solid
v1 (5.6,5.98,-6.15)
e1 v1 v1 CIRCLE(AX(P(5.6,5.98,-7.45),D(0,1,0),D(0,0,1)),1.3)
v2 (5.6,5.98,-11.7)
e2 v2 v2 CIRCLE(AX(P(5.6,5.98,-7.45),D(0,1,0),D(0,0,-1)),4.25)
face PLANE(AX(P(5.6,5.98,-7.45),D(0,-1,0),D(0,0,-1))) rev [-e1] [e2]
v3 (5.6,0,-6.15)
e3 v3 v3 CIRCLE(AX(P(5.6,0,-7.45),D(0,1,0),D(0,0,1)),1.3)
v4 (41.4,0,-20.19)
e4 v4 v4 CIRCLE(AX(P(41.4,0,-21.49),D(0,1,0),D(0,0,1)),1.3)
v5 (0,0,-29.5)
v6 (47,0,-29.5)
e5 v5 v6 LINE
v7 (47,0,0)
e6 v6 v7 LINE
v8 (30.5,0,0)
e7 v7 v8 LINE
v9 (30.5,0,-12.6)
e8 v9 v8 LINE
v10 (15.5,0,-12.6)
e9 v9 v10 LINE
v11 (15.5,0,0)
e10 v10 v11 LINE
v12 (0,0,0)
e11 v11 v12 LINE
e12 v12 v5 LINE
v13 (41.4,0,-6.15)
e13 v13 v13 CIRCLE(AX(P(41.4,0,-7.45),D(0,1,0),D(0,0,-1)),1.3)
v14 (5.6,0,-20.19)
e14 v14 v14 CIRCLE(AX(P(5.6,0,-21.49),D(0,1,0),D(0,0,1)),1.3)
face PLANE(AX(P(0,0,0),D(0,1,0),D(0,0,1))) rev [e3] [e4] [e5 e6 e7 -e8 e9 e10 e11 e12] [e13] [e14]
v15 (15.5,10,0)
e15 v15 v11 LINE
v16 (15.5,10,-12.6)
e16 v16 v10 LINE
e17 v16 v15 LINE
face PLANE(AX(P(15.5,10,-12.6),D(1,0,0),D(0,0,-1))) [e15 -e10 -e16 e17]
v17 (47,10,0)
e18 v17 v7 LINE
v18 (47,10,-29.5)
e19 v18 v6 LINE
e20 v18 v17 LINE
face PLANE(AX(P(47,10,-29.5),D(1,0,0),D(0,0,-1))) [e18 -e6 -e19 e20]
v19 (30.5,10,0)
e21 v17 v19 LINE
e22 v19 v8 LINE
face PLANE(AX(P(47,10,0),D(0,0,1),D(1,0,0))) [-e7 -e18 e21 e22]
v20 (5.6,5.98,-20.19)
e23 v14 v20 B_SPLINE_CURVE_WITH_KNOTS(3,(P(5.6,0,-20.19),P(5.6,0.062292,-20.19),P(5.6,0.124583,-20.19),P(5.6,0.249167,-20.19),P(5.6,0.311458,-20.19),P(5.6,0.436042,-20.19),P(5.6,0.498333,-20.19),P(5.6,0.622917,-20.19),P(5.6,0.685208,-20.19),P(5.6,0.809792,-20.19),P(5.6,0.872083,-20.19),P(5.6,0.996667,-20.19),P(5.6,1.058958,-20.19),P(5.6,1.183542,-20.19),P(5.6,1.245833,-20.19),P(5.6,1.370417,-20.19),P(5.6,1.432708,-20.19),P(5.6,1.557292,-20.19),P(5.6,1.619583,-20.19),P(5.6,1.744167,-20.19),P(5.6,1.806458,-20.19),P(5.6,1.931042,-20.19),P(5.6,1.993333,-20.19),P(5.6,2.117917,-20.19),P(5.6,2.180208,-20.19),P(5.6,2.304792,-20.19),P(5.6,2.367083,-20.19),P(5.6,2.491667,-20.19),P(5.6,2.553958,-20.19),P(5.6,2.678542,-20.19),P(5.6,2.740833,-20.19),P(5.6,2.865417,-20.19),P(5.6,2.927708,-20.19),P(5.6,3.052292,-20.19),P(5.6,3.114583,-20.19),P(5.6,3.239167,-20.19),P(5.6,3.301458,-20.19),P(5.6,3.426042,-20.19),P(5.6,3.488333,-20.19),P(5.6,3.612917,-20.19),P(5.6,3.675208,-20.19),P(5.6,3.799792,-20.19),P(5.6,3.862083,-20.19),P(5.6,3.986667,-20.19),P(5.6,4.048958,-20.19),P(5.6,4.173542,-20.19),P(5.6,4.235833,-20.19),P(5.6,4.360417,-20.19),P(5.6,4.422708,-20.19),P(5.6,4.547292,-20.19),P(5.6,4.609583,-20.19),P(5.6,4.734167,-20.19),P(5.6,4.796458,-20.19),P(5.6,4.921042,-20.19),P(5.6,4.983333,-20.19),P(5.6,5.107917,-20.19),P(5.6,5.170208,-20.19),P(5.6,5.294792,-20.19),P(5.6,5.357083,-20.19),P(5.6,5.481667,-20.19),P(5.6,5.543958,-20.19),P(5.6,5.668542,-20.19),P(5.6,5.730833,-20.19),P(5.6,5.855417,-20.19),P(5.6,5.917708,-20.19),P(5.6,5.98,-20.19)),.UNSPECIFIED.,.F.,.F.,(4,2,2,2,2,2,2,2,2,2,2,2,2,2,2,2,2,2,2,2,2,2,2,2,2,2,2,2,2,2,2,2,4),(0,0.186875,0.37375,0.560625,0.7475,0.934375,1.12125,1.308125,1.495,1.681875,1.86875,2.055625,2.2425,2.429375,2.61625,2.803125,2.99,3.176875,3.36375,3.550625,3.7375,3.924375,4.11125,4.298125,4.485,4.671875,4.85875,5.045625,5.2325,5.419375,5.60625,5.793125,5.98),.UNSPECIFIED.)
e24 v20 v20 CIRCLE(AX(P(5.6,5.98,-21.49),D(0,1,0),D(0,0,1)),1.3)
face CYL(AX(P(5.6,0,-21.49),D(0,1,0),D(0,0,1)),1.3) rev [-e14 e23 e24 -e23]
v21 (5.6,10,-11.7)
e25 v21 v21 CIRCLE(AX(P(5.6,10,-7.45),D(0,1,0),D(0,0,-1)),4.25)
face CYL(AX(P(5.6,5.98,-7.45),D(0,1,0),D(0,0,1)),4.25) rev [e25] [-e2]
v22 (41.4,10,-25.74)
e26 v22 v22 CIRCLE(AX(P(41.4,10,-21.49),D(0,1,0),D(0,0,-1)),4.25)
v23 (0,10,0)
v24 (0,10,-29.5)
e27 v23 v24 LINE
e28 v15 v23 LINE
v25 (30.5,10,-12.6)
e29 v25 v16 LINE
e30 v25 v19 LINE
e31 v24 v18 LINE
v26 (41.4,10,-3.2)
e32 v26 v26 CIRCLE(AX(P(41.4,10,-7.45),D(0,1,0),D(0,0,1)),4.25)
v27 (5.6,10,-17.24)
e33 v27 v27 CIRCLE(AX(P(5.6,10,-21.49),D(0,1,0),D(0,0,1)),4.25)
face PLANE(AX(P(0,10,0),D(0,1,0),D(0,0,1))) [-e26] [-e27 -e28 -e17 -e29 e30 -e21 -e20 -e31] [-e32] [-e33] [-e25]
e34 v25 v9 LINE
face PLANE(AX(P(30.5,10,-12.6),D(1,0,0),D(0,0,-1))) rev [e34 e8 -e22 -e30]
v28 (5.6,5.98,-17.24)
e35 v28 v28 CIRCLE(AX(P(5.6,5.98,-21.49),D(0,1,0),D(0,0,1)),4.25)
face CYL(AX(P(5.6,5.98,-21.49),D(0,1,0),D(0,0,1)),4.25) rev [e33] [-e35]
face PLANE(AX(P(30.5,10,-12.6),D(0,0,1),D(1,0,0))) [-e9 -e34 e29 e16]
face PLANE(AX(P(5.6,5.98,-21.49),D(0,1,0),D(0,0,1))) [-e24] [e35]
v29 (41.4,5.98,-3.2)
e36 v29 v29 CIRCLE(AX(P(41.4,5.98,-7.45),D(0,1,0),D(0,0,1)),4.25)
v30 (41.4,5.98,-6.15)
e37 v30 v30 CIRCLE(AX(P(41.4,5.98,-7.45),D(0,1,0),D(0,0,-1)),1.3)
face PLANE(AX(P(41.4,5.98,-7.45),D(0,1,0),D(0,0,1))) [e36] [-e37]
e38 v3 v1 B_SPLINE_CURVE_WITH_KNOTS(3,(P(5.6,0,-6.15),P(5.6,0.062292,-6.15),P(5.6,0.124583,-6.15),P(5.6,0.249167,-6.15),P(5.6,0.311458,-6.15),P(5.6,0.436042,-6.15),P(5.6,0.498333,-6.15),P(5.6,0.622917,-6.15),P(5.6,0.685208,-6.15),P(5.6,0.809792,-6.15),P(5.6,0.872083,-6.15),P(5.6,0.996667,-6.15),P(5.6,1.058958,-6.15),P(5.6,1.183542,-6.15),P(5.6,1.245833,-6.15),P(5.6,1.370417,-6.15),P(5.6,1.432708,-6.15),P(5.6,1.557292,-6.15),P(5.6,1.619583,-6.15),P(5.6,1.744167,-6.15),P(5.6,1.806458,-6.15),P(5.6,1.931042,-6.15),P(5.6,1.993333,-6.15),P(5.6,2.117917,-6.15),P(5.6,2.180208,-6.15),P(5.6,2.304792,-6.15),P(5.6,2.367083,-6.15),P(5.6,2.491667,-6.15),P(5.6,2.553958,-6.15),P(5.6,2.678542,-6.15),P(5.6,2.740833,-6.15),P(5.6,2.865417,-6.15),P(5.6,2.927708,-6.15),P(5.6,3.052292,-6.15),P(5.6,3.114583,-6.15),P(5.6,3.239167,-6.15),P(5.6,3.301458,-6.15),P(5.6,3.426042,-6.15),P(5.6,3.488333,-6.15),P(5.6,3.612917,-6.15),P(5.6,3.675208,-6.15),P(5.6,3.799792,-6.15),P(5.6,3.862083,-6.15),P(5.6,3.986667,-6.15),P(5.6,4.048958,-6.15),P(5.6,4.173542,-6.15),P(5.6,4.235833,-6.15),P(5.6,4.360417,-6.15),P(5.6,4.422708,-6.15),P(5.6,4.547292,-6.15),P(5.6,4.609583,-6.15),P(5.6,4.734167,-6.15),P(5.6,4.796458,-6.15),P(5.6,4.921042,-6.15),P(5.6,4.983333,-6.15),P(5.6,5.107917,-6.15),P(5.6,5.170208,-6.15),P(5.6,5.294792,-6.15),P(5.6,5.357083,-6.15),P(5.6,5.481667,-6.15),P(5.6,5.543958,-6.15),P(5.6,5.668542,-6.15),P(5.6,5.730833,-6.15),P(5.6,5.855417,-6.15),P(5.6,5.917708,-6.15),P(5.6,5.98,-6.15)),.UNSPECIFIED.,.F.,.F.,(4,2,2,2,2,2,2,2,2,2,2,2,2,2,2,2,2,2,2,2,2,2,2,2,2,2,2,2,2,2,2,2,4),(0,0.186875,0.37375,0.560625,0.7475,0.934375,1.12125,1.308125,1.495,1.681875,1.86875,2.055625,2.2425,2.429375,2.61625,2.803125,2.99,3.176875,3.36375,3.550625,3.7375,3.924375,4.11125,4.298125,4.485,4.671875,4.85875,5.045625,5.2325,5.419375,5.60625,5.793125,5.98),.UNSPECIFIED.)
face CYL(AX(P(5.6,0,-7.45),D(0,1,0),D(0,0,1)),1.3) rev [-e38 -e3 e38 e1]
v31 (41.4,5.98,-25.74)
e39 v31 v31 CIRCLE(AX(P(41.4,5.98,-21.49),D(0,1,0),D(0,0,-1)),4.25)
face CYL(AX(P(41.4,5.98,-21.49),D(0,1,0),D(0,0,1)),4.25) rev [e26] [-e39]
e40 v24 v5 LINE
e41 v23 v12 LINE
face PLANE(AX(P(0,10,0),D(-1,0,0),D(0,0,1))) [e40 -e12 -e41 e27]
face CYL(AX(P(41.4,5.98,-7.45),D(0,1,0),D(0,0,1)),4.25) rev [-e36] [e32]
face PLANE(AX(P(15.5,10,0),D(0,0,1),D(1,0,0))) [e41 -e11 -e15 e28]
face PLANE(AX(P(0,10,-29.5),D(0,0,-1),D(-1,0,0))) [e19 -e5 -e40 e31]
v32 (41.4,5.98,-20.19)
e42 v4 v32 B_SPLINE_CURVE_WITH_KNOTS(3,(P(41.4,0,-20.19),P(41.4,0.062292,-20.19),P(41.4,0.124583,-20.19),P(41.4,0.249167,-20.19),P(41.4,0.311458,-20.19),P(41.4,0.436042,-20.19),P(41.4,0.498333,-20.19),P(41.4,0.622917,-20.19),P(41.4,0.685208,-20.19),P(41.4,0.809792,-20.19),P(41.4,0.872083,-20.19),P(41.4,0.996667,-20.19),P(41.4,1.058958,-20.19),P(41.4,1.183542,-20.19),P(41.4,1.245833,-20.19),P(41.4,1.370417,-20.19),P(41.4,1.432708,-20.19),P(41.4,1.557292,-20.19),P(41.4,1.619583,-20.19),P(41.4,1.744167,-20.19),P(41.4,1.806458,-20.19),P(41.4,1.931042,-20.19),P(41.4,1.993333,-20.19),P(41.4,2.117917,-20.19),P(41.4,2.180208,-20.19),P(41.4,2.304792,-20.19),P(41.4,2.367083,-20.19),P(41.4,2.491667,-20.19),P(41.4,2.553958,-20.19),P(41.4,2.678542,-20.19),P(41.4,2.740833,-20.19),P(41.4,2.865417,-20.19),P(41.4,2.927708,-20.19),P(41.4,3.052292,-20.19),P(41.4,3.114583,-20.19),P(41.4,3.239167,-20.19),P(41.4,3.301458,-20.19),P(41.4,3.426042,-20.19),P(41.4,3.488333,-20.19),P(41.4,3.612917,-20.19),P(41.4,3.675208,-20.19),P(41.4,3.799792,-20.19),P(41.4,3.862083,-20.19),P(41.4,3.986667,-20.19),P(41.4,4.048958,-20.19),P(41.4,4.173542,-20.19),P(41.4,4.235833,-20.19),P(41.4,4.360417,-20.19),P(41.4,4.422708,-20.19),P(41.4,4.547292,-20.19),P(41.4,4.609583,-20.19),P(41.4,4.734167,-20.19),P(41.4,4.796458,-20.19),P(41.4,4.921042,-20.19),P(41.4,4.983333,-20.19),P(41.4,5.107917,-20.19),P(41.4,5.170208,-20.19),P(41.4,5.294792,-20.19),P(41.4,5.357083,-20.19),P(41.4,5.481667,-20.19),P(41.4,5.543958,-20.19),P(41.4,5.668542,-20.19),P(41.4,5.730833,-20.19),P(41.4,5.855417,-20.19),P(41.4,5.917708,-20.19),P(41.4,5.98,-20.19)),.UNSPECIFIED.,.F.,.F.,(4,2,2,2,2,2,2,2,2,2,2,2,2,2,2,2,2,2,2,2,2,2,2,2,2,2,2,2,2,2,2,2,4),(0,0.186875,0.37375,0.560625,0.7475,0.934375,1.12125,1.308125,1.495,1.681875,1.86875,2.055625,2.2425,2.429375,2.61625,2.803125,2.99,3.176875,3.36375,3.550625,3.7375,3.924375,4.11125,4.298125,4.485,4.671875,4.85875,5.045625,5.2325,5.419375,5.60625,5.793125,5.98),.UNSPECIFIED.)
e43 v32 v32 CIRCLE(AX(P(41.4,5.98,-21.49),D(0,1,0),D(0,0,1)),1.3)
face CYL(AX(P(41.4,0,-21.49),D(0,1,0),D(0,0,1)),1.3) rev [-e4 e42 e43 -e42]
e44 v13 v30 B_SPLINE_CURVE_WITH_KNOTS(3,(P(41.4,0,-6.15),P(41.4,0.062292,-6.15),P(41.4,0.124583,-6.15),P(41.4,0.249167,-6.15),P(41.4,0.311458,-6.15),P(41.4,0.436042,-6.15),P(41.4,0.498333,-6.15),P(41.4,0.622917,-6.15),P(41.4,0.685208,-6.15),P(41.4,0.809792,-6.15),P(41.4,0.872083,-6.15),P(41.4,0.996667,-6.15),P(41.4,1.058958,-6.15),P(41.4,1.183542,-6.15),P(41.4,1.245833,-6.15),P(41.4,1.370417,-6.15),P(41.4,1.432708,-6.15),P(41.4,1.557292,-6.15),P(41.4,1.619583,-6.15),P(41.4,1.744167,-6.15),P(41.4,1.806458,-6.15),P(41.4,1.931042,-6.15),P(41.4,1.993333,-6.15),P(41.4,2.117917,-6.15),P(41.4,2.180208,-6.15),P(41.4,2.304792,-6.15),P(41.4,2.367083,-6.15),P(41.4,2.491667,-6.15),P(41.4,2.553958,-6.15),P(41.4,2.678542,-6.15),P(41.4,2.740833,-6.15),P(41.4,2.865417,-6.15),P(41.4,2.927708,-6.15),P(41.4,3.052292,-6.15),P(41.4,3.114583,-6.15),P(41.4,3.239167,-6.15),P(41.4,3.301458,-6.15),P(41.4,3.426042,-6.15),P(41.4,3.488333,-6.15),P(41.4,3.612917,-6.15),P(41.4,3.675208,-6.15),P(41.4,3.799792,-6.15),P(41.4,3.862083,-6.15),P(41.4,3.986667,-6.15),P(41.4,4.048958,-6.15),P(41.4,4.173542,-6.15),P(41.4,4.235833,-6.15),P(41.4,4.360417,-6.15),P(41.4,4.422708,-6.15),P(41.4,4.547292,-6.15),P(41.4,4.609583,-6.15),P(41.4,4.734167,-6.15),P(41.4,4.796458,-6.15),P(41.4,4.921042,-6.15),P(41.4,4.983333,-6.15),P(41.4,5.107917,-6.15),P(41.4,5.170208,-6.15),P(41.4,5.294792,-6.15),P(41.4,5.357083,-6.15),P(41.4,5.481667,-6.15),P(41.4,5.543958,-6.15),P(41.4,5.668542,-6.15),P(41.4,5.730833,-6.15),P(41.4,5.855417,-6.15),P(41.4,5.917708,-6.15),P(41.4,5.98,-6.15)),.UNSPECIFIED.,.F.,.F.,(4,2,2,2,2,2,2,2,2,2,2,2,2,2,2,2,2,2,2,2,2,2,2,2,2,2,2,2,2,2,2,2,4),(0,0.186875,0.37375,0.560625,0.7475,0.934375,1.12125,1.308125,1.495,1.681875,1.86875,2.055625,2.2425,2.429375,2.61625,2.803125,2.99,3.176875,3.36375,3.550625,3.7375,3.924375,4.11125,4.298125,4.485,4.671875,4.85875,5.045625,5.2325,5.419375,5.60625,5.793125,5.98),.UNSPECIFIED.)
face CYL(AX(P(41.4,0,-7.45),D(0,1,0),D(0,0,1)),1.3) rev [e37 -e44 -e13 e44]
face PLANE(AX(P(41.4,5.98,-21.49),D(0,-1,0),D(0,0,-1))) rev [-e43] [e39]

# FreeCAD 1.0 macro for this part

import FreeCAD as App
import Part
import Sketcher
from FreeCAD import Vector


def add_polygon(sketch, points):
    """Adds a closed chain of lines whose ends are joined by coincident constraints."""
    first, n = sketch.GeometryCount, len(points)
    for a, b in zip(points, points[1:] + points[:1]):
        sketch.addGeometry(Part.LineSegment(App.Vector(*a, 0), App.Vector(*b, 0)), False)
    for i in range(n):
        sketch.addConstraint(Sketcher.Constraint("Coincident", first + i, 2, first + (i + 1) % n, 1))

doc = App.newDocument("Part")
params = doc.addObject("Spreadsheet::Sheet", "Params")
for row, (alias, value) in enumerate([
    ("sketch1_width", "15 mm"),
    ("sketch1_width2", "47 mm"),
    ("sketch1_width3", "15.5 mm"),
    ("sketch1_height", "29.5 mm"),
    ("sketch1_height2", "12.6 mm"),
    ("pad1_length", "10 mm"),
    ("sketch2_diameter", "8.5 mm"),
    ("pocket1_length", "4.02 mm"),
    ("sketch3_diameter", "2.6 mm"),
], start=1):
    params.set(f"A{row}", alias)
    params.set(f"B{row}", "=" + value)
    params.setAlias(f"B{row}", alias)

body = doc.addObject("PartDesign::Body", "Body")

# Sketch on XZ plane
sketch1 = body.newObject("Sketcher::SketchObject", "Sketch")
sketch1.AttachmentSupport = (doc.getObject("XZ_Plane"), [""])
sketch1.MapMode = "FlatFace"
add_polygon(sketch1, [(0, -29.5), (0, 0), (15.5, 0), (15.5, -12.6), (30.5, -12.6), (30.5, 0), (47, 0), (47, -29.5)])  # lines 0-7
sketch1.addConstraint(Sketcher.Constraint("Vertical", 0))
sketch1.addConstraint(Sketcher.Constraint("Horizontal", 1))
sketch1.addConstraint(Sketcher.Constraint("Vertical", 2))
sketch1.addConstraint(Sketcher.Constraint("Horizontal", 3))
sketch1.addConstraint(Sketcher.Constraint("Vertical", 4))
sketch1.addConstraint(Sketcher.Constraint("Horizontal", 5))
sketch1.addConstraint(Sketcher.Constraint("Vertical", 6))
sketch1.addConstraint(Sketcher.Constraint("Horizontal", 7))
sketch1.addConstraint(Sketcher.Constraint("Coincident", 0, 2, -1, 1))
sketch1.addConstraint(Sketcher.Constraint("PointOnObject", 4, 2, -1))
sketch1.addConstraint(Sketcher.Constraint("DistanceX", 3, 1, 3, 2, 15.0))
sketch1.addConstraint(Sketcher.Constraint("DistanceX", 7, 2, 7, 1, 47.0))
sketch1.addConstraint(Sketcher.Constraint("DistanceX", 1, 1, 1, 2, 15.5))
sketch1.addConstraint(Sketcher.Constraint("DistanceY", 0, 1, 0, 2, 29.5))
sketch1.addConstraint(Sketcher.Constraint("DistanceY", 2, 2, 2, 1, 12.6))
sketch1.setExpression("Constraints[18]", "Params.sketch1_width")
sketch1.setExpression("Constraints[19]", "Params.sketch1_width2")
sketch1.setExpression("Constraints[20]", "Params.sketch1_width3")
sketch1.setExpression("Constraints[21]", "Params.sketch1_height")
sketch1.setExpression("Constraints[22]", "Params.sketch1_height2")
pad1 = body.newObject("PartDesign::Pad", "Pad")
pad1.Profile = sketch1
pad1.setExpression("Length", "Params.pad1_length")
pad1.Reversed = True

# Sketch on XZ plane
sketch2 = body.newObject("Sketcher::SketchObject", "Sketch001")
sketch2.AttachmentSupport = (doc.getObject("XZ_Plane"), [""])
sketch2.MapMode = "FlatFace"
sketch2.AttachmentOffset = App.Placement(Vector(0, 0, -10), App.Rotation())
sketch2.addGeometry(Part.Circle(Vector(41.4, -7.45, 0), Vector(0, 0, 1), 4.25), False)
sketch2.addGeometry(Part.Circle(Vector(5.6, -7.45, 0), Vector(0, 0, 1), 4.25), False)
sketch2.addGeometry(Part.Circle(Vector(5.6, -21.49, 0), Vector(0, 0, 1), 4.25), False)
sketch2.addGeometry(Part.Circle(Vector(41.4, -21.49, 0), Vector(0, 0, 1), 4.25), False)
sketch2.addConstraint(Sketcher.Constraint("Equal", 0, 1))
sketch2.addConstraint(Sketcher.Constraint("Equal", 1, 2))
sketch2.addConstraint(Sketcher.Constraint("Equal", 2, 3))
sketch2.addConstraint(Sketcher.Constraint("Horizontal", 0, 3, 1, 3))
sketch2.addConstraint(Sketcher.Constraint("Horizontal", 2, 3, 3, 3))
sketch2.addConstraint(Sketcher.Constraint("Vertical", 1, 3, 2, 3))
sketch2.addConstraint(Sketcher.Constraint("Vertical", 0, 3, 3, 3))
sketch2.addConstraint(Sketcher.Constraint("Diameter", 0, 8.5))
sketch2.addConstraint(Sketcher.Constraint("DistanceX", -1, 1, 0, 3, 41.4))
sketch2.addConstraint(Sketcher.Constraint("DistanceX", -1, 1, 1, 3, 5.6))
sketch2.addConstraint(Sketcher.Constraint("DistanceY", 0, 3, -1, 1, 7.45))
sketch2.addConstraint(Sketcher.Constraint("DistanceY", 2, 3, -1, 1, 21.49))
sketch2.setExpression("Constraints[7]", "Params.sketch2_diameter")
pocket1 = body.newObject("PartDesign::Pocket", "Pocket")
pocket1.Profile = sketch2
pocket1.setExpression("Length", "Params.pocket1_length")
pocket1.Reversed = True

# Sketch on XZ plane
sketch3 = body.newObject("Sketcher::SketchObject", "Sketch002")
sketch3.AttachmentSupport = (doc.getObject("XZ_Plane"), [""])
sketch3.MapMode = "FlatFace"
sketch3.AttachmentOffset = App.Placement(Vector(0, 0, -5.98), App.Rotation())
sketch3.addGeometry(Part.Circle(Vector(5.6, -7.45, 0), Vector(0, 0, 1), 1.3), False)
sketch3.addGeometry(Part.Circle(Vector(41.4, -7.45, 0), Vector(0, 0, 1), 1.3), False)
sketch3.addGeometry(Part.Circle(Vector(5.6, -21.49, 0), Vector(0, 0, 1), 1.3), False)
sketch3.addGeometry(Part.Circle(Vector(41.4, -21.49, 0), Vector(0, 0, 1), 1.3), False)
sketch3.addConstraint(Sketcher.Constraint("Equal", 0, 1))
sketch3.addConstraint(Sketcher.Constraint("Equal", 1, 2))
sketch3.addConstraint(Sketcher.Constraint("Equal", 2, 3))
sketch3.addConstraint(Sketcher.Constraint("Horizontal", 0, 3, 1, 3))
sketch3.addConstraint(Sketcher.Constraint("Horizontal", 2, 3, 3, 3))
sketch3.addConstraint(Sketcher.Constraint("Vertical", 0, 3, 2, 3))
sketch3.addConstraint(Sketcher.Constraint("Vertical", 1, 3, 3, 3))
sketch3.addConstraint(Sketcher.Constraint("Diameter", 0, 2.6))
sketch3.addConstraint(Sketcher.Constraint("DistanceX", -1, 1, 0, 3, 5.6))
sketch3.addConstraint(Sketcher.Constraint("DistanceX", -1, 1, 1, 3, 41.4))
sketch3.addConstraint(Sketcher.Constraint("DistanceY", 0, 3, -1, 1, 7.45))
sketch3.addConstraint(Sketcher.Constraint("DistanceY", 2, 3, -1, 1, 21.49))
sketch3.setExpression("Constraints[7]", "Params.sketch3_diameter")
pocket2 = body.newObject("PartDesign::Pocket", "Pocket001")
pocket2.Profile = sketch3
pocket2.Type = "ThroughAll"
pocket2.Reversed = True

doc.recompute()
